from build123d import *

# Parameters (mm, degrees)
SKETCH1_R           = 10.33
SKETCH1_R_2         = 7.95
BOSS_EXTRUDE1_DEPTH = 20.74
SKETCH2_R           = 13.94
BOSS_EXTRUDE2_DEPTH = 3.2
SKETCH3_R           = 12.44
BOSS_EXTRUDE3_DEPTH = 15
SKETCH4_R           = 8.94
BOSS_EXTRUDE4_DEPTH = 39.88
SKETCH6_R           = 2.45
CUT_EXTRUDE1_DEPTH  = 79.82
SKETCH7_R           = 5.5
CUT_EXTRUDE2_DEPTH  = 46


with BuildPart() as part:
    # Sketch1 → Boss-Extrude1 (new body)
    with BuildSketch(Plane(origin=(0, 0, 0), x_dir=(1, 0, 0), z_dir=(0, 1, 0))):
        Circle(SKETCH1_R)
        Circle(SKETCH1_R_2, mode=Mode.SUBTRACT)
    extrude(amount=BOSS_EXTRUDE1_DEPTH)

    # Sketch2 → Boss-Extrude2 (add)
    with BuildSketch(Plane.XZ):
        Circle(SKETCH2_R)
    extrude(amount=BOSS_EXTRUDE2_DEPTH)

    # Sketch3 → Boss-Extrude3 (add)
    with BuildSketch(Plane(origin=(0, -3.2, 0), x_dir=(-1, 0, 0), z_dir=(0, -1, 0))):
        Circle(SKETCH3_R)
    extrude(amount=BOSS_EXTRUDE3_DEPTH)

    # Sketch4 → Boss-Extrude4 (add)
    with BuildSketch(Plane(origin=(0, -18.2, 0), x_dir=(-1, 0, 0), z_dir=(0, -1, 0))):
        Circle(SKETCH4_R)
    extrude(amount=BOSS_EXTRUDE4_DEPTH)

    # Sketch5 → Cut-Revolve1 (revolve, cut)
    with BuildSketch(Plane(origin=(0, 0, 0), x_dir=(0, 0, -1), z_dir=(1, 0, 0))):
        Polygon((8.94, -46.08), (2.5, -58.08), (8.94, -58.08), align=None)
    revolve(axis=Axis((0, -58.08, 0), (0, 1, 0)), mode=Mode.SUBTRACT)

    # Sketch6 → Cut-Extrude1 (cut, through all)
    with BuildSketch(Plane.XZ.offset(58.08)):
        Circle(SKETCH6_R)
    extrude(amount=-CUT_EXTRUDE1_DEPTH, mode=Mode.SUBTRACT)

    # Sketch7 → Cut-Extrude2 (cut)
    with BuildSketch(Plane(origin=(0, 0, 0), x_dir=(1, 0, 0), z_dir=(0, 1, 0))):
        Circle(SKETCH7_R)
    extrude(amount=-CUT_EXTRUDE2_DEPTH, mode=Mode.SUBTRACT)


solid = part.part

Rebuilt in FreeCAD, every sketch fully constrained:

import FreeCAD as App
import Part
import Sketcher
Q = App.Units.Quantity

doc = App.newDocument("Part")
body = doc.addObject("PartDesign::Body", "Body")

# Sketch on XZ plane
sketch1 = body.newObject("Sketcher::SketchObject", "Sketch")
sketch1.AttachmentSupport = (doc.getObject("XZ_Plane"), [""])
sketch1.MapMode = "FlatFace"
sketch1.addGeometry(Part.Circle(App.Vector(0, 0, 0), App.Vector(0, 0, 1), 10.33), False)
sketch1.addGeometry(Part.Circle(App.Vector(0, 0, 0), App.Vector(0, 0, 1), 7.95), False)
sketch1.addConstraint(Sketcher.Constraint("Coincident", 0, 3, -1, 1))
sketch1.addConstraint(Sketcher.Constraint("Coincident", 1, 3, -1, 1))
sketch1.addConstraint(Sketcher.Constraint("Diameter", 1, Q("15.9 mm")))
sketch1.addConstraint(Sketcher.Constraint("Diameter", 0, Q("20.66 mm")))
pad1 = body.newObject("PartDesign::Pad", "Pad")
pad1.Profile = sketch1
pad1.Length = 20.74
pad1.Reversed = True

# Sketch on XZ plane
sketch2 = body.newObject("Sketcher::SketchObject", "Sketch001")
sketch2.AttachmentSupport = (doc.getObject("XZ_Plane"), [""])
sketch2.MapMode = "FlatFace"
sketch2.addGeometry(Part.Circle(App.Vector(0, 0, 0), App.Vector(0, 0, 1), 13.94), False)
sketch2.addConstraint(Sketcher.Constraint("Coincident", 0, 3, -1, 1))
sketch2.addConstraint(Sketcher.Constraint("Diameter", 0, Q("27.88 mm")))
pad2 = body.newObject("PartDesign::Pad", "Pad001")
pad2.Profile = sketch2
pad2.Length = 3.2

# Sketch on XZ plane
sketch3 = body.newObject("Sketcher::SketchObject", "Sketch002")
sketch3.AttachmentSupport = (doc.getObject("XZ_Plane"), [""])
sketch3.MapMode = "FlatFace"
sketch3.AttachmentOffset = App.Placement(App.Vector(0, 0, 3.2), App.Rotation())
sketch3.addGeometry(Part.Circle(App.Vector(0, 0, 0), App.Vector(0, 0, 1), 12.44), False)
sketch3.addConstraint(Sketcher.Constraint("Coincident", 0, 3, -1, 1))
sketch3.addConstraint(Sketcher.Constraint("Diameter", 0, Q("24.88 mm")))
pad3 = body.newObject("PartDesign::Pad", "Pad002")
pad3.Profile = sketch3
pad3.Length = 15

# Sketch on XZ plane
sketch4 = body.newObject("Sketcher::SketchObject", "Sketch003")
sketch4.AttachmentSupport = (doc.getObject("XZ_Plane"), [""])
sketch4.MapMode = "FlatFace"
sketch4.AttachmentOffset = App.Placement(App.Vector(0, 0, 18.2), App.Rotation())
sketch4.addGeometry(Part.Circle(App.Vector(0, 0, 0), App.Vector(0, 0, 1), 8.94), False)
sketch4.addConstraint(Sketcher.Constraint("Coincident", 0, 3, -1, 1))
sketch4.addConstraint(Sketcher.Constraint("Diameter", 0, Q("17.88 mm")))
pad4 = body.newObject("PartDesign::Pad", "Pad003")
pad4.Profile = sketch4
pad4.Length = 39.88

# Sketch on YZ plane
sketch5 = body.newObject("Sketcher::SketchObject", "Sketch004")
sketch5.AttachmentSupport = (doc.getObject("YZ_Plane"), [""])
sketch5.MapMode = "FlatFace"
sketch5.addGeometry(Part.LineSegment(App.Vector(-46.08, -8.94, 0), App.Vector(-58.08, -2.5, 0)), False)
sketch5.addGeometry(Part.LineSegment(App.Vector(-58.08, -2.5, 0), App.Vector(-58.08, -8.94, 0)), False)
sketch5.addGeometry(Part.LineSegment(App.Vector(-58.08, -8.94, 0), App.Vector(-46.08, -8.94, 0)), False)
sketch5.addConstraint(Sketcher.Constraint("Coincident", 0, 2, 1, 1))
sketch5.addConstraint(Sketcher.Constraint("Coincident", 1, 2, 2, 1))
sketch5.addConstraint(Sketcher.Constraint("Coincident", 2, 2, 0, 1))
sketch5.addConstraint(Sketcher.Constraint("Vertical", 1))
sketch5.addConstraint(Sketcher.Constraint("Horizontal", 2))
sketch5.addConstraint(Sketcher.Constraint("DistanceX", 2, 1, 2, 2, Q("12 mm")))
sketch5.addConstraint(Sketcher.Constraint("DistanceY", 1, 2, 1, 1, Q("6.44 mm")))
sketch5.addConstraint(Sketcher.Constraint("DistanceY", 0, 2, -1, 1, Q("2.5 mm")))
sketch5.addConstraint(Sketcher.Constraint("DistanceX", 0, 2, -1, 1, Q("58.08 mm")))
groove = body.newObject("PartDesign::Groove", "Groove")
groove.Profile = sketch5
groove.ReferenceAxis = (sketch5, ["H_Axis"])
groove.Angle = 360

# Sketch on XZ plane
sketch6 = body.newObject("Sketcher::SketchObject", "Sketch005")
sketch6.AttachmentSupport = (doc.getObject("XZ_Plane"), [""])
sketch6.MapMode = "FlatFace"
sketch6.AttachmentOffset = App.Placement(App.Vector(0, 0, 58.08), App.Rotation())
sketch6.addGeometry(Part.Circle(App.Vector(0, 0, 0), App.Vector(0, 0, 1), 2.45), False)
sketch6.addConstraint(Sketcher.Constraint("Coincident", 0, 3, -1, 1))
sketch6.addConstraint(Sketcher.Constraint("Diameter", 0, Q("4.9 mm")))
pocket1 = body.newObject("PartDesign::Pocket", "Pocket")
pocket1.Profile = sketch6
pocket1.Type = "ThroughAll"

# Sketch on XZ plane
sketch7 = body.newObject("Sketcher::SketchObject", "Sketch006")
sketch7.AttachmentSupport = (doc.getObject("XZ_Plane"), [""])
sketch7.MapMode = "FlatFace"
sketch7.addGeometry(Part.Circle(App.Vector(0, 0, 0), App.Vector(0, 0, 1), 5.5), False)
sketch7.addConstraint(Sketcher.Constraint("Coincident", 0, 3, -1, 1))
sketch7.addConstraint(Sketcher.Constraint("Diameter", 0, Q("11 mm")))
pocket2 = body.newObject("PartDesign::Pocket", "Pocket001")
pocket2.Profile = sketch7
pocket2.Length = 46
pocket2.Reversed = True

doc.recompute()
